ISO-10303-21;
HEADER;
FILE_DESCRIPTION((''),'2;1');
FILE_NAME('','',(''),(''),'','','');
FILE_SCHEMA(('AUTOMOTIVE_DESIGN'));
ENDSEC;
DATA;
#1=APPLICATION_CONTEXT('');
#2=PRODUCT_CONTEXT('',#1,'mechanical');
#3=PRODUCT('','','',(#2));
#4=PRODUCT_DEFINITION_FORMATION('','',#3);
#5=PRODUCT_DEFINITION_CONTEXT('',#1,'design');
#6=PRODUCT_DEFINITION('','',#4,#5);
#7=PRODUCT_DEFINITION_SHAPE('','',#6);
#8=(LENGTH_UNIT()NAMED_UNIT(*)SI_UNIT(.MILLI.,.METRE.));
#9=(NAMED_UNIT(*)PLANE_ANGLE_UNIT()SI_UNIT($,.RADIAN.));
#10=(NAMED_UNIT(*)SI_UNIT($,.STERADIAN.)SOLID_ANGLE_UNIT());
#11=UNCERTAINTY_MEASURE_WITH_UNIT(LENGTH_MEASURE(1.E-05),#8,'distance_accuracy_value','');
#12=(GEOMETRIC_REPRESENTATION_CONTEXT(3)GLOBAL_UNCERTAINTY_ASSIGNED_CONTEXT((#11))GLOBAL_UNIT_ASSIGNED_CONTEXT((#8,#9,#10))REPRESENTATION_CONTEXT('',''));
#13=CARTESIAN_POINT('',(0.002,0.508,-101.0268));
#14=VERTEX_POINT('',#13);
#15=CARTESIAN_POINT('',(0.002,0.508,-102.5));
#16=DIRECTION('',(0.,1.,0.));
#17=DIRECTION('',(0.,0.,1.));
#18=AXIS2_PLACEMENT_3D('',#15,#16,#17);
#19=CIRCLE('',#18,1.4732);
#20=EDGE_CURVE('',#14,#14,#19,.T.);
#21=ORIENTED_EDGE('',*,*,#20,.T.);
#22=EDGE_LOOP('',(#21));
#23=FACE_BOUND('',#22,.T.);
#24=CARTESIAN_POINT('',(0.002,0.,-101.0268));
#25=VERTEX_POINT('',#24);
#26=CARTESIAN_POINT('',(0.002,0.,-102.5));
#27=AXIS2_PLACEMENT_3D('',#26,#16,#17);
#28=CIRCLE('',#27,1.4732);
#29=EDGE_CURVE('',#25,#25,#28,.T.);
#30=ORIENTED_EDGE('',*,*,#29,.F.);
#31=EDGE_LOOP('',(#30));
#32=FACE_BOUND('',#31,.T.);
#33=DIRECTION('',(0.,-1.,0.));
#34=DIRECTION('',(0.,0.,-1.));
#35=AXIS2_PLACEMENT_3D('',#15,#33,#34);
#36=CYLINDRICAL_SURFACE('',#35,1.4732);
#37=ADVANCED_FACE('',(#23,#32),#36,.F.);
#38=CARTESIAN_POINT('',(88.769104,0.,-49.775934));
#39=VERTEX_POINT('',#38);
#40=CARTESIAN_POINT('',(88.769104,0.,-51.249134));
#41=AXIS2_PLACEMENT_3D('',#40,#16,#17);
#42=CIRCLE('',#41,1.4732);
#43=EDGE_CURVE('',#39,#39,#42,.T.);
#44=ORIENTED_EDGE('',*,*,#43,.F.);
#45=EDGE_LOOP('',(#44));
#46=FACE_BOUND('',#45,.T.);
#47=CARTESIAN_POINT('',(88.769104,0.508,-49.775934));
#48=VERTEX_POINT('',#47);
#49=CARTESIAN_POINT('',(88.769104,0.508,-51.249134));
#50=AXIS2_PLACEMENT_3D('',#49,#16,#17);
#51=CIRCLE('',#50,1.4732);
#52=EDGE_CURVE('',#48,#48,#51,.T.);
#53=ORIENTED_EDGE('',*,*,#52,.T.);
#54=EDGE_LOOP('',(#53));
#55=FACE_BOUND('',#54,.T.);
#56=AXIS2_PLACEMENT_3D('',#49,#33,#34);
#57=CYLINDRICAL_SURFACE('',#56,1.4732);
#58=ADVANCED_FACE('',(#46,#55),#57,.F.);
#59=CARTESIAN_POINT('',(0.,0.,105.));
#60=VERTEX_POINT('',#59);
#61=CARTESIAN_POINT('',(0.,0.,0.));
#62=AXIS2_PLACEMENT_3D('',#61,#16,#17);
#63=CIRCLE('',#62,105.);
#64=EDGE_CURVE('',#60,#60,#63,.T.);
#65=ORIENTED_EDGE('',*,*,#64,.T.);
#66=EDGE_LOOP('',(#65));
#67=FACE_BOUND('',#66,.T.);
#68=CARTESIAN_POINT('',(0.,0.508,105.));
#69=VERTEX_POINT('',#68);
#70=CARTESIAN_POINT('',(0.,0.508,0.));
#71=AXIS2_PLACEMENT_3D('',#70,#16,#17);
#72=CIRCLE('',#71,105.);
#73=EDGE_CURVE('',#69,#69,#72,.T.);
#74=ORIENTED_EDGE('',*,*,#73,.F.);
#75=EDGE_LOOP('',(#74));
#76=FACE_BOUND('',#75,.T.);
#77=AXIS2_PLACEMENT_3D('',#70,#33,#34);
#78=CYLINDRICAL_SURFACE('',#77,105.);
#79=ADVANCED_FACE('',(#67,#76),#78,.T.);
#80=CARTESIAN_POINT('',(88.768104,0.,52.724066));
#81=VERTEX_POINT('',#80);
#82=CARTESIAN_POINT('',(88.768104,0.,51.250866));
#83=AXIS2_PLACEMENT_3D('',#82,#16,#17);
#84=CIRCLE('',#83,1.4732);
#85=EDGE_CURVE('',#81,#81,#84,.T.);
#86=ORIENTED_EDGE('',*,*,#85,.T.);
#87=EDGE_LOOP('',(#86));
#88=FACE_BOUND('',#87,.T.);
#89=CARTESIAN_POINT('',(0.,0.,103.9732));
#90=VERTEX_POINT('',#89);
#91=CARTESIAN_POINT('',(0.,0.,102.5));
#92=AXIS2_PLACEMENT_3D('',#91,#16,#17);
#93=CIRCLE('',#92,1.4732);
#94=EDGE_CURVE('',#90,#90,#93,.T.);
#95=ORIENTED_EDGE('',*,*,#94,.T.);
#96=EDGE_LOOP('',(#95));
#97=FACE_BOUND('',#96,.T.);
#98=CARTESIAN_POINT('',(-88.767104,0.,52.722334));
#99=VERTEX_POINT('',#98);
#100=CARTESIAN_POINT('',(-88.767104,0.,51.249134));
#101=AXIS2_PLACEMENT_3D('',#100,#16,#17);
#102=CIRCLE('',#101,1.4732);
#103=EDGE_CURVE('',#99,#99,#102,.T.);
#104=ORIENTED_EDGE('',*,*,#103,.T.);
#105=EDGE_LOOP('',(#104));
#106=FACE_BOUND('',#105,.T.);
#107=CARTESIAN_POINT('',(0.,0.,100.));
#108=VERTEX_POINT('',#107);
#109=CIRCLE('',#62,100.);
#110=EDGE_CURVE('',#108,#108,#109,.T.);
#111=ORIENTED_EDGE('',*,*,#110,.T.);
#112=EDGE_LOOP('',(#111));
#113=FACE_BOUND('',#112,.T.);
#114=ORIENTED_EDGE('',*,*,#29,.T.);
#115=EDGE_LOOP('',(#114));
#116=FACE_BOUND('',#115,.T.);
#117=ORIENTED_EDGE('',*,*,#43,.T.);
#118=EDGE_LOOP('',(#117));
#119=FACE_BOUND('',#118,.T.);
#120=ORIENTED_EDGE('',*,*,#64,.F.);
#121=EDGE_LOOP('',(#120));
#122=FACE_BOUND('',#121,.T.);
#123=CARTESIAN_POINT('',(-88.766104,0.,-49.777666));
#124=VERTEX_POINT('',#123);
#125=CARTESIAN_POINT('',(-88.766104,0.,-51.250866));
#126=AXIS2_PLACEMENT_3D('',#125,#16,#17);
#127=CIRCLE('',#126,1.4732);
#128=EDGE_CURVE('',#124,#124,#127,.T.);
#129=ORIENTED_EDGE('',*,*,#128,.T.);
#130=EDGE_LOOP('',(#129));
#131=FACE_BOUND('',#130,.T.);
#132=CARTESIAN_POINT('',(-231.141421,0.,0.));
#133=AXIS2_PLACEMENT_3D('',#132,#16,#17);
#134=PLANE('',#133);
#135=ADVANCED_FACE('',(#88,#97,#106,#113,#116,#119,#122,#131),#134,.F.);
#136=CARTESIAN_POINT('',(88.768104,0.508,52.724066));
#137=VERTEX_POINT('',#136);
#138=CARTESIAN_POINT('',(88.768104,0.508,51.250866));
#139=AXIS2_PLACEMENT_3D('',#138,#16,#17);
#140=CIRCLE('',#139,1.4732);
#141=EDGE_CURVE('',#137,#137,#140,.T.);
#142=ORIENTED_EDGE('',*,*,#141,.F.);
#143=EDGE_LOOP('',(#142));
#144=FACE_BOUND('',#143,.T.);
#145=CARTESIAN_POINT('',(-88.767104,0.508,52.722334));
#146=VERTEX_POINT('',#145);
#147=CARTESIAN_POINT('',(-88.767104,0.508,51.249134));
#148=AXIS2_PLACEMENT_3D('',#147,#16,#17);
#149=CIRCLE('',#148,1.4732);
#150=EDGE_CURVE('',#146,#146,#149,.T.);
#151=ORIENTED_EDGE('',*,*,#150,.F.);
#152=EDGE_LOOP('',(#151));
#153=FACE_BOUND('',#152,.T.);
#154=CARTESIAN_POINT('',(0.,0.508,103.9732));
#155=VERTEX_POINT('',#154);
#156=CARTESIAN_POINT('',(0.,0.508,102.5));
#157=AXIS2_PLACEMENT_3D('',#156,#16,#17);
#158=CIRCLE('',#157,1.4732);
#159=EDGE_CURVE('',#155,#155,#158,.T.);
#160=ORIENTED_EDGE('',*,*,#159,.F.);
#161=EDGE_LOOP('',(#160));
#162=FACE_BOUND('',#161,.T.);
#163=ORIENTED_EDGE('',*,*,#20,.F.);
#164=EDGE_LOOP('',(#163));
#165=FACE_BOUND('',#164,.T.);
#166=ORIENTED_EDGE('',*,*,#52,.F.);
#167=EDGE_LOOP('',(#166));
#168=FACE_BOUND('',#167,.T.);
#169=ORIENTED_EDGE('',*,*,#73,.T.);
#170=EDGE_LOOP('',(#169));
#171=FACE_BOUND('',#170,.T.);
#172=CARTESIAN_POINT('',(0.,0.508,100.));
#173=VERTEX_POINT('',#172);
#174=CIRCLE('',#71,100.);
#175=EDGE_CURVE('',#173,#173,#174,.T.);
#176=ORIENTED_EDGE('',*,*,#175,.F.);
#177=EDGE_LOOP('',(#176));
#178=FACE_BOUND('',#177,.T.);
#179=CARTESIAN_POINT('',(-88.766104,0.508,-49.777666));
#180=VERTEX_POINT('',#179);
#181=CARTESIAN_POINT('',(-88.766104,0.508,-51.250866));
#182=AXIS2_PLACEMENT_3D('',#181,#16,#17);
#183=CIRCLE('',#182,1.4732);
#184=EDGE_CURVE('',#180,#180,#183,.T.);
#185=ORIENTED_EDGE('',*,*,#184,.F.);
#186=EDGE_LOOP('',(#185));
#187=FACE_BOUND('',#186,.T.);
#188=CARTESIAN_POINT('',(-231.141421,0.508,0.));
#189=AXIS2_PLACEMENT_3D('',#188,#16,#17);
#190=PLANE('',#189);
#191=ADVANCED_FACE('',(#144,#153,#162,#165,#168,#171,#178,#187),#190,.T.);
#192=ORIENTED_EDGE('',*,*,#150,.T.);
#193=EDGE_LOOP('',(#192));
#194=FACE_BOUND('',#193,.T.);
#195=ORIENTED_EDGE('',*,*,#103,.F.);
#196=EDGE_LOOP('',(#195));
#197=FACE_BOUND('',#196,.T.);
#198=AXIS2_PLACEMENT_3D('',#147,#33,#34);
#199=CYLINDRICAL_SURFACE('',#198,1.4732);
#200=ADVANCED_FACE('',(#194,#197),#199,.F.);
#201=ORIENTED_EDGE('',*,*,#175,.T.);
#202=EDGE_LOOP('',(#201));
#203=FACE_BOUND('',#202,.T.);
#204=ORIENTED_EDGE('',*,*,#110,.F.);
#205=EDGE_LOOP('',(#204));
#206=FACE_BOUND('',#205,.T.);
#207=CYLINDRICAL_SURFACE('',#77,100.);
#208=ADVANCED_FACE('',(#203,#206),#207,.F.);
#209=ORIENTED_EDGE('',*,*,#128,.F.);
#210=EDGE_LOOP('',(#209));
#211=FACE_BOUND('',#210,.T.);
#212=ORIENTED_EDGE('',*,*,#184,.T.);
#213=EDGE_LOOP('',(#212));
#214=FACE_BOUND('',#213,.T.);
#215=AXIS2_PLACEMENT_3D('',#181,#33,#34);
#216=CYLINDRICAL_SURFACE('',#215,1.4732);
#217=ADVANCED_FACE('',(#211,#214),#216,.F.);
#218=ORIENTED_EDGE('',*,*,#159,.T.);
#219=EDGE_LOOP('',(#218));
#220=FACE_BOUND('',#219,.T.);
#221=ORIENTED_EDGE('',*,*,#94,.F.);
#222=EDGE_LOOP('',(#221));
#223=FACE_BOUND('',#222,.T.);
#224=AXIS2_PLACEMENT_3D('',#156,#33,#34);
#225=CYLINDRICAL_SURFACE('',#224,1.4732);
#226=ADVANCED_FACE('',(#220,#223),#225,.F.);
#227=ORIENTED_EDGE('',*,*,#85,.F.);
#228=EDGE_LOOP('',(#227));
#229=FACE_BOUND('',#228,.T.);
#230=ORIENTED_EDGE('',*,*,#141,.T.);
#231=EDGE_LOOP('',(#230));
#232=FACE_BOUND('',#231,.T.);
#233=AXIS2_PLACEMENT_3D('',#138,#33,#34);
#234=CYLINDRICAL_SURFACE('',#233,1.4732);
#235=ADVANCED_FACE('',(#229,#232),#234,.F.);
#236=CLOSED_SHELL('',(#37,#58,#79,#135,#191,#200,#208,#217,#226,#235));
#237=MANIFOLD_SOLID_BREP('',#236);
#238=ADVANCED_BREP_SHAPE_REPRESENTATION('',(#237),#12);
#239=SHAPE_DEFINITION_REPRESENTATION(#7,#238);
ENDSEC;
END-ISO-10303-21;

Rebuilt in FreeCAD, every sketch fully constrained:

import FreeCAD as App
import Part
import Sketcher

V = App.Vector

doc = App.newDocument("Part")
body = doc.addObject("PartDesign::Body", "Body")

# Sketch on XZ plane
sketch1 = doc.addObject("Sketcher::SketchObject", "Sketch")
body.addObject(sketch1)
sketch1.AttachmentSupport = (doc.XZ_Plane, [""])
sketch1.MapMode = "FlatFace"
sketch1.addGeometry([
    Part.Circle(V(0, 0, 0), V(0, 0, 1), 105),  # 0
    Part.Circle(V(-88.8, -51.3, 0), V(0, 0, 1), 1.5),  # 1
    Part.Circle(V(-88.8, 51.2, 0), V(0, 0, 1), 1.5),  # 2
    Part.Circle(V(0, -102.5, 0), V(0, 0, 1), 1.5),  # 3
    Part.Circle(V(88.8, -51.2, 0), V(0, 0, 1), 1.5),  # 4
    Part.Circle(V(0, 0, 0), V(0, 0, 1), 100),  # 5
    Part.Circle(V(0, 102.5, 0), V(0, 0, 1), 1.5),  # 6
    Part.Circle(V(88.8, 51.3, 0), V(0, 0, 1), 1.5),  # 7
], False)
sketch1.addConstraint([
    Sketcher.Constraint("Coincident", 0, 3, -1, 1),
    Sketcher.Constraint("Coincident", 5, 3, -1, 1),
    Sketcher.Constraint("Equal", 1, 2),
    Sketcher.Constraint("Equal", 2, 3),
    Sketcher.Constraint("Equal", 3, 4),
    Sketcher.Constraint("Equal", 4, 6),
    Sketcher.Constraint("Equal", 6, 7),
    Sketcher.Constraint("PointOnObject", 6, 3, -2),
    Sketcher.Constraint("Diameter", 0, 210.0),
    Sketcher.Constraint("Diameter", 5, 200.0),
    Sketcher.Constraint("Diameter", 1, 2.9464),
    Sketcher.Constraint("DistanceY", 3, 3, -1, 1, 102.5),
    Sketcher.Constraint("DistanceY", -1, 1, 6, 3, 102.5),
    Sketcher.Constraint("DistanceY", 1, 3, 2, 3, 102.5),
    Sketcher.Constraint("DistanceY", 4, 3, 7, 3, 102.5),
    Sketcher.Constraint("DistanceX", -1, 1, 3, 3, 0.002),
    Sketcher.Constraint("DistanceX", 2, 3, 1, 3, 0.001),
    Sketcher.Constraint("DistanceX", 7, 3, 4, 3, 0.001),
    Sketcher.Constraint("DistanceX", 1, 3, -1, 1, 88.766104),
    Sketcher.Constraint("DistanceY", 1, 3, -1, 1, 51.250866),
    Sketcher.Constraint("DistanceX", -1, 1, 4, 3, 88.769104),
    Sketcher.Constraint("DistanceY", 4, 3, -1, 1, 51.249134),
])
pad1 = doc.addObject("PartDesign::Pad", "Pad")
body.addObject(pad1)
pad1.Profile = sketch1
pad1.Length = 0.508
pad1.Reversed = True

doc.recompute()
